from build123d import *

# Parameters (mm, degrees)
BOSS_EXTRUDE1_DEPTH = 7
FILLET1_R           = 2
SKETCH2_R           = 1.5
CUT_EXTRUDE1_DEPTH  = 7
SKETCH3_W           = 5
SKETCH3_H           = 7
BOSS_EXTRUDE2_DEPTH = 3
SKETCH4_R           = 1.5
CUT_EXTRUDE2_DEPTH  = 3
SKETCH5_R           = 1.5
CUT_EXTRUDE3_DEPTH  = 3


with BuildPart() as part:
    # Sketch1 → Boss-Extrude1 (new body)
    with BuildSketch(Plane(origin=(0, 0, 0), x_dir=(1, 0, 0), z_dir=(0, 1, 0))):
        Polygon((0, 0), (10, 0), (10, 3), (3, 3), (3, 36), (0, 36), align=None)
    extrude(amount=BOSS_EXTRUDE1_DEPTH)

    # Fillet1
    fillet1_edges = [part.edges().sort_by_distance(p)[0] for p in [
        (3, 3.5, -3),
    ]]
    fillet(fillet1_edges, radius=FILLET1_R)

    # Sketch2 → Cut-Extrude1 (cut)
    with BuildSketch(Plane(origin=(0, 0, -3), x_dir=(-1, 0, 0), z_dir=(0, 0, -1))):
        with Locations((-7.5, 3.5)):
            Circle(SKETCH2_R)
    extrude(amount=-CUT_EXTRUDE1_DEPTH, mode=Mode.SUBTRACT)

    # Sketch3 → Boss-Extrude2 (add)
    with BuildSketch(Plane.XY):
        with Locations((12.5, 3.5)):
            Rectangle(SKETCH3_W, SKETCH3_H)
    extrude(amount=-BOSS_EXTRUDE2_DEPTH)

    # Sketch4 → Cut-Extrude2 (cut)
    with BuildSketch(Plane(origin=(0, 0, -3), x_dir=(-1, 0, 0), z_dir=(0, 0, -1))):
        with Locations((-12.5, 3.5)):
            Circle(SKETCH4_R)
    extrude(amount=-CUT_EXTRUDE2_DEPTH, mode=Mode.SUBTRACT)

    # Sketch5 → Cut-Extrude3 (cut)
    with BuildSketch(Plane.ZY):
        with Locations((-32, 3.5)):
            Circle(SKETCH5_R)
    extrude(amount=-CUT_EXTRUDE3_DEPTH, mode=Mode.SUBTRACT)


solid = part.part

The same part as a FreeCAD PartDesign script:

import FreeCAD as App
import Part
import Sketcher

V = App.Vector
Q = App.Units.Quantity


def edges_at(feature, points):
    """Names of the edges that pass closest to the given points."""
    edges = feature.Shape.Edges
    near = lambda p: min(range(len(edges)), key=lambda i: edges[i].distToShape(Part.Vertex(*p))[0])
    return sorted({f"Edge{near(p) + 1}" for p in points})


def add_polygon(sketch, points):
    """Adds a closed chain of lines whose ends are joined by coincident constraints."""
    first, n = sketch.GeometryCount, len(points)
    for a, b in zip(points, points[1:] + points[:1]):
        sketch.addGeometry(Part.LineSegment(App.Vector(*a, 0), App.Vector(*b, 0)), False)
    for i in range(n):
        sketch.addConstraint(Sketcher.Constraint("Coincident", first + i, 2, first + (i + 1) % n, 1))

doc = App.newDocument("Part")
params = doc.addObject("Spreadsheet::Sheet", "Params")
for row, (alias, value) in enumerate([
    ("sketch1_width", "10 mm"),
    ("sketch1_width2", "7 mm"),
    ("sketch1_height", "33 mm"),
    ("pad1_length", "7 mm"),
    ("fillet_radius", "2 mm"),
    ("sketch2_diameter", "3 mm"),
    ("pocket1_length", "7 mm"),
    ("sketch3_width", "5 mm"),
    ("sketch3_height", "7 mm"),
    ("pad2_length", "3 mm"),
    ("sketch4_diameter", "3 mm"),
    ("pocket2_length", "3 mm"),
    ("sketch5_diameter", "3 mm"),
    ("pocket3_length", "3 mm"),
], start=1):
    params.set(f"A{row}", alias)
    params.set(f"B{row}", "=" + value)
    params.setAlias(f"B{row}", alias)

body = doc.addObject("PartDesign::Body", "Body")

sketch1 = body.newObject("Sketcher::SketchObject", "Sketch")
sketch1.AttachmentSupport = (doc.getObject("XZ_Plane"), [""])
sketch1.MapMode = "FlatFace"
add_polygon(sketch1, [(0, 0), (10, 0), (10, -3), (3, -3), (3, -36), (0, -36)])
sketch1.addConstraint([
    Sketcher.Constraint("Horizontal", 0),
    Sketcher.Constraint("Vertical", 1),
    Sketcher.Constraint("Horizontal", 2),
    Sketcher.Constraint("Vertical", 3),
    Sketcher.Constraint("Horizontal", 4),
    Sketcher.Constraint("Vertical", 5),
    Sketcher.Constraint("Coincident", 5, 2, -1, 1),
    Sketcher.Constraint("Equal", 4, 1),
    Sketcher.Constraint("DistanceX", 0, 1, 0, 2, Q("10 mm")),
    Sketcher.Constraint("DistanceX", 2, 2, 2, 1, Q("7 mm")),
    Sketcher.Constraint("DistanceY", 3, 2, 3, 1, Q("33 mm")),
])
sketch1.setExpression("Constraints[14]", "Params.sketch1_width")
sketch1.setExpression("Constraints[15]", "Params.sketch1_width2")
sketch1.setExpression("Constraints[16]", "Params.sketch1_height")
pad1 = body.newObject("PartDesign::Pad", "Pad")
pad1.Profile = sketch1
pad1.setExpression("Length", "Params.pad1_length")
pad1.Reversed = True
doc.recompute()

fillet = body.newObject("PartDesign::Fillet", "Fillet")
fillet.Base = (pad1, edges_at(pad1, [(3, 3.5, -3)]))
fillet.setExpression("Radius", "Params.fillet_radius")

sketch2 = body.newObject("Sketcher::SketchObject", "Sketch001")
sketch2.AttachmentSupport = (doc.getObject("XY_Plane"), [""])
sketch2.MapMode = "FlatFace"
sketch2.AttachmentOffset = App.Placement(V(0, 0, -3), App.Rotation())
sketch2.addGeometry(Part.Circle(V(7.5, 3.5, 0), V(0, 0, 1), 1.5), False)
sketch2.addConstraint([
    Sketcher.Constraint("Diameter", 0, Q("3 mm")),
    Sketcher.Constraint("DistanceX", -1, 1, 0, 3, Q("7.5 mm")),
    Sketcher.Constraint("DistanceY", -1, 1, 0, 3, Q("3.5 mm")),
])
sketch2.setExpression("Constraints[0]", "Params.sketch2_diameter")
pocket1 = body.newObject("PartDesign::Pocket", "Pocket")
pocket1.Profile = sketch2
pocket1.setExpression("Length", "Params.pocket1_length")
pocket1.Reversed = True

sketch3 = body.newObject("Sketcher::SketchObject", "Sketch002")
sketch3.AttachmentSupport = (doc.getObject("XY_Plane"), [""])
sketch3.MapMode = "FlatFace"
add_polygon(sketch3, [(10, 7), (10, 0), (15, 0), (15, 7)])
sketch3.addConstraint([
    Sketcher.Constraint("Vertical", 0),
    Sketcher.Constraint("Horizontal", 1),
    Sketcher.Constraint("Vertical", 2),
    Sketcher.Constraint("Horizontal", 3),
    Sketcher.Constraint("PointOnObject", 0, 2, -1),
    Sketcher.Constraint("DistanceX", 1, 1, 1, 2, Q("5 mm")),
    Sketcher.Constraint("DistanceY", 0, 2, 0, 1, Q("7 mm")),
    Sketcher.Constraint("DistanceX", -1, 1, 0, 2, Q("10 mm")),
])
sketch3.setExpression("Constraints[9]", "Params.sketch3_width")
sketch3.setExpression("Constraints[10]", "Params.sketch3_height")
pad2 = body.newObject("PartDesign::Pad", "Pad001")
pad2.Profile = sketch3
pad2.setExpression("Length", "Params.pad2_length")
pad2.Reversed = True

sketch4 = body.newObject("Sketcher::SketchObject", "Sketch003")
sketch4.AttachmentSupport = (doc.getObject("XY_Plane"), [""])
sketch4.MapMode = "FlatFace"
sketch4.AttachmentOffset = App.Placement(V(0, 0, -3), App.Rotation())
sketch4.addGeometry(Part.Circle(V(12.5, 3.5, 0), V(0, 0, 1), 1.5), False)
sketch4.addConstraint([
    Sketcher.Constraint("Diameter", 0, Q("3 mm")),
    Sketcher.Constraint("DistanceX", -1, 1, 0, 3, Q("12.5 mm")),
    Sketcher.Constraint("DistanceY", -1, 1, 0, 3, Q("3.5 mm")),
])
sketch4.setExpression("Constraints[0]", "Params.sketch4_diameter")
pocket2 = body.newObject("PartDesign::Pocket", "Pocket001")
pocket2.Profile = sketch4
pocket2.setExpression("Length", "Params.pocket2_length")
pocket2.Reversed = True

sketch5 = body.newObject("Sketcher::SketchObject", "Sketch004")
sketch5.AttachmentSupport = (doc.getObject("YZ_Plane"), [""])
sketch5.MapMode = "FlatFace"
sketch5.addGeometry(Part.Circle(V(3.5, -32, 0), V(0, 0, 1), 1.5), False)
sketch5.addConstraint([
    Sketcher.Constraint("Diameter", 0, Q("3 mm")),
    Sketcher.Constraint("DistanceY", 0, 3, -1, 1, Q("32 mm")),
    Sketcher.Constraint("DistanceX", -1, 1, 0, 3, Q("3.5 mm")),
])
sketch5.setExpression("Constraints[0]", "Params.sketch5_diameter")
pocket3 = body.newObject("PartDesign::Pocket", "Pocket002")
pocket3.Profile = sketch5
pocket3.setExpression("Length", "Params.pocket3_length")
pocket3.Reversed = True

doc.recompute()
